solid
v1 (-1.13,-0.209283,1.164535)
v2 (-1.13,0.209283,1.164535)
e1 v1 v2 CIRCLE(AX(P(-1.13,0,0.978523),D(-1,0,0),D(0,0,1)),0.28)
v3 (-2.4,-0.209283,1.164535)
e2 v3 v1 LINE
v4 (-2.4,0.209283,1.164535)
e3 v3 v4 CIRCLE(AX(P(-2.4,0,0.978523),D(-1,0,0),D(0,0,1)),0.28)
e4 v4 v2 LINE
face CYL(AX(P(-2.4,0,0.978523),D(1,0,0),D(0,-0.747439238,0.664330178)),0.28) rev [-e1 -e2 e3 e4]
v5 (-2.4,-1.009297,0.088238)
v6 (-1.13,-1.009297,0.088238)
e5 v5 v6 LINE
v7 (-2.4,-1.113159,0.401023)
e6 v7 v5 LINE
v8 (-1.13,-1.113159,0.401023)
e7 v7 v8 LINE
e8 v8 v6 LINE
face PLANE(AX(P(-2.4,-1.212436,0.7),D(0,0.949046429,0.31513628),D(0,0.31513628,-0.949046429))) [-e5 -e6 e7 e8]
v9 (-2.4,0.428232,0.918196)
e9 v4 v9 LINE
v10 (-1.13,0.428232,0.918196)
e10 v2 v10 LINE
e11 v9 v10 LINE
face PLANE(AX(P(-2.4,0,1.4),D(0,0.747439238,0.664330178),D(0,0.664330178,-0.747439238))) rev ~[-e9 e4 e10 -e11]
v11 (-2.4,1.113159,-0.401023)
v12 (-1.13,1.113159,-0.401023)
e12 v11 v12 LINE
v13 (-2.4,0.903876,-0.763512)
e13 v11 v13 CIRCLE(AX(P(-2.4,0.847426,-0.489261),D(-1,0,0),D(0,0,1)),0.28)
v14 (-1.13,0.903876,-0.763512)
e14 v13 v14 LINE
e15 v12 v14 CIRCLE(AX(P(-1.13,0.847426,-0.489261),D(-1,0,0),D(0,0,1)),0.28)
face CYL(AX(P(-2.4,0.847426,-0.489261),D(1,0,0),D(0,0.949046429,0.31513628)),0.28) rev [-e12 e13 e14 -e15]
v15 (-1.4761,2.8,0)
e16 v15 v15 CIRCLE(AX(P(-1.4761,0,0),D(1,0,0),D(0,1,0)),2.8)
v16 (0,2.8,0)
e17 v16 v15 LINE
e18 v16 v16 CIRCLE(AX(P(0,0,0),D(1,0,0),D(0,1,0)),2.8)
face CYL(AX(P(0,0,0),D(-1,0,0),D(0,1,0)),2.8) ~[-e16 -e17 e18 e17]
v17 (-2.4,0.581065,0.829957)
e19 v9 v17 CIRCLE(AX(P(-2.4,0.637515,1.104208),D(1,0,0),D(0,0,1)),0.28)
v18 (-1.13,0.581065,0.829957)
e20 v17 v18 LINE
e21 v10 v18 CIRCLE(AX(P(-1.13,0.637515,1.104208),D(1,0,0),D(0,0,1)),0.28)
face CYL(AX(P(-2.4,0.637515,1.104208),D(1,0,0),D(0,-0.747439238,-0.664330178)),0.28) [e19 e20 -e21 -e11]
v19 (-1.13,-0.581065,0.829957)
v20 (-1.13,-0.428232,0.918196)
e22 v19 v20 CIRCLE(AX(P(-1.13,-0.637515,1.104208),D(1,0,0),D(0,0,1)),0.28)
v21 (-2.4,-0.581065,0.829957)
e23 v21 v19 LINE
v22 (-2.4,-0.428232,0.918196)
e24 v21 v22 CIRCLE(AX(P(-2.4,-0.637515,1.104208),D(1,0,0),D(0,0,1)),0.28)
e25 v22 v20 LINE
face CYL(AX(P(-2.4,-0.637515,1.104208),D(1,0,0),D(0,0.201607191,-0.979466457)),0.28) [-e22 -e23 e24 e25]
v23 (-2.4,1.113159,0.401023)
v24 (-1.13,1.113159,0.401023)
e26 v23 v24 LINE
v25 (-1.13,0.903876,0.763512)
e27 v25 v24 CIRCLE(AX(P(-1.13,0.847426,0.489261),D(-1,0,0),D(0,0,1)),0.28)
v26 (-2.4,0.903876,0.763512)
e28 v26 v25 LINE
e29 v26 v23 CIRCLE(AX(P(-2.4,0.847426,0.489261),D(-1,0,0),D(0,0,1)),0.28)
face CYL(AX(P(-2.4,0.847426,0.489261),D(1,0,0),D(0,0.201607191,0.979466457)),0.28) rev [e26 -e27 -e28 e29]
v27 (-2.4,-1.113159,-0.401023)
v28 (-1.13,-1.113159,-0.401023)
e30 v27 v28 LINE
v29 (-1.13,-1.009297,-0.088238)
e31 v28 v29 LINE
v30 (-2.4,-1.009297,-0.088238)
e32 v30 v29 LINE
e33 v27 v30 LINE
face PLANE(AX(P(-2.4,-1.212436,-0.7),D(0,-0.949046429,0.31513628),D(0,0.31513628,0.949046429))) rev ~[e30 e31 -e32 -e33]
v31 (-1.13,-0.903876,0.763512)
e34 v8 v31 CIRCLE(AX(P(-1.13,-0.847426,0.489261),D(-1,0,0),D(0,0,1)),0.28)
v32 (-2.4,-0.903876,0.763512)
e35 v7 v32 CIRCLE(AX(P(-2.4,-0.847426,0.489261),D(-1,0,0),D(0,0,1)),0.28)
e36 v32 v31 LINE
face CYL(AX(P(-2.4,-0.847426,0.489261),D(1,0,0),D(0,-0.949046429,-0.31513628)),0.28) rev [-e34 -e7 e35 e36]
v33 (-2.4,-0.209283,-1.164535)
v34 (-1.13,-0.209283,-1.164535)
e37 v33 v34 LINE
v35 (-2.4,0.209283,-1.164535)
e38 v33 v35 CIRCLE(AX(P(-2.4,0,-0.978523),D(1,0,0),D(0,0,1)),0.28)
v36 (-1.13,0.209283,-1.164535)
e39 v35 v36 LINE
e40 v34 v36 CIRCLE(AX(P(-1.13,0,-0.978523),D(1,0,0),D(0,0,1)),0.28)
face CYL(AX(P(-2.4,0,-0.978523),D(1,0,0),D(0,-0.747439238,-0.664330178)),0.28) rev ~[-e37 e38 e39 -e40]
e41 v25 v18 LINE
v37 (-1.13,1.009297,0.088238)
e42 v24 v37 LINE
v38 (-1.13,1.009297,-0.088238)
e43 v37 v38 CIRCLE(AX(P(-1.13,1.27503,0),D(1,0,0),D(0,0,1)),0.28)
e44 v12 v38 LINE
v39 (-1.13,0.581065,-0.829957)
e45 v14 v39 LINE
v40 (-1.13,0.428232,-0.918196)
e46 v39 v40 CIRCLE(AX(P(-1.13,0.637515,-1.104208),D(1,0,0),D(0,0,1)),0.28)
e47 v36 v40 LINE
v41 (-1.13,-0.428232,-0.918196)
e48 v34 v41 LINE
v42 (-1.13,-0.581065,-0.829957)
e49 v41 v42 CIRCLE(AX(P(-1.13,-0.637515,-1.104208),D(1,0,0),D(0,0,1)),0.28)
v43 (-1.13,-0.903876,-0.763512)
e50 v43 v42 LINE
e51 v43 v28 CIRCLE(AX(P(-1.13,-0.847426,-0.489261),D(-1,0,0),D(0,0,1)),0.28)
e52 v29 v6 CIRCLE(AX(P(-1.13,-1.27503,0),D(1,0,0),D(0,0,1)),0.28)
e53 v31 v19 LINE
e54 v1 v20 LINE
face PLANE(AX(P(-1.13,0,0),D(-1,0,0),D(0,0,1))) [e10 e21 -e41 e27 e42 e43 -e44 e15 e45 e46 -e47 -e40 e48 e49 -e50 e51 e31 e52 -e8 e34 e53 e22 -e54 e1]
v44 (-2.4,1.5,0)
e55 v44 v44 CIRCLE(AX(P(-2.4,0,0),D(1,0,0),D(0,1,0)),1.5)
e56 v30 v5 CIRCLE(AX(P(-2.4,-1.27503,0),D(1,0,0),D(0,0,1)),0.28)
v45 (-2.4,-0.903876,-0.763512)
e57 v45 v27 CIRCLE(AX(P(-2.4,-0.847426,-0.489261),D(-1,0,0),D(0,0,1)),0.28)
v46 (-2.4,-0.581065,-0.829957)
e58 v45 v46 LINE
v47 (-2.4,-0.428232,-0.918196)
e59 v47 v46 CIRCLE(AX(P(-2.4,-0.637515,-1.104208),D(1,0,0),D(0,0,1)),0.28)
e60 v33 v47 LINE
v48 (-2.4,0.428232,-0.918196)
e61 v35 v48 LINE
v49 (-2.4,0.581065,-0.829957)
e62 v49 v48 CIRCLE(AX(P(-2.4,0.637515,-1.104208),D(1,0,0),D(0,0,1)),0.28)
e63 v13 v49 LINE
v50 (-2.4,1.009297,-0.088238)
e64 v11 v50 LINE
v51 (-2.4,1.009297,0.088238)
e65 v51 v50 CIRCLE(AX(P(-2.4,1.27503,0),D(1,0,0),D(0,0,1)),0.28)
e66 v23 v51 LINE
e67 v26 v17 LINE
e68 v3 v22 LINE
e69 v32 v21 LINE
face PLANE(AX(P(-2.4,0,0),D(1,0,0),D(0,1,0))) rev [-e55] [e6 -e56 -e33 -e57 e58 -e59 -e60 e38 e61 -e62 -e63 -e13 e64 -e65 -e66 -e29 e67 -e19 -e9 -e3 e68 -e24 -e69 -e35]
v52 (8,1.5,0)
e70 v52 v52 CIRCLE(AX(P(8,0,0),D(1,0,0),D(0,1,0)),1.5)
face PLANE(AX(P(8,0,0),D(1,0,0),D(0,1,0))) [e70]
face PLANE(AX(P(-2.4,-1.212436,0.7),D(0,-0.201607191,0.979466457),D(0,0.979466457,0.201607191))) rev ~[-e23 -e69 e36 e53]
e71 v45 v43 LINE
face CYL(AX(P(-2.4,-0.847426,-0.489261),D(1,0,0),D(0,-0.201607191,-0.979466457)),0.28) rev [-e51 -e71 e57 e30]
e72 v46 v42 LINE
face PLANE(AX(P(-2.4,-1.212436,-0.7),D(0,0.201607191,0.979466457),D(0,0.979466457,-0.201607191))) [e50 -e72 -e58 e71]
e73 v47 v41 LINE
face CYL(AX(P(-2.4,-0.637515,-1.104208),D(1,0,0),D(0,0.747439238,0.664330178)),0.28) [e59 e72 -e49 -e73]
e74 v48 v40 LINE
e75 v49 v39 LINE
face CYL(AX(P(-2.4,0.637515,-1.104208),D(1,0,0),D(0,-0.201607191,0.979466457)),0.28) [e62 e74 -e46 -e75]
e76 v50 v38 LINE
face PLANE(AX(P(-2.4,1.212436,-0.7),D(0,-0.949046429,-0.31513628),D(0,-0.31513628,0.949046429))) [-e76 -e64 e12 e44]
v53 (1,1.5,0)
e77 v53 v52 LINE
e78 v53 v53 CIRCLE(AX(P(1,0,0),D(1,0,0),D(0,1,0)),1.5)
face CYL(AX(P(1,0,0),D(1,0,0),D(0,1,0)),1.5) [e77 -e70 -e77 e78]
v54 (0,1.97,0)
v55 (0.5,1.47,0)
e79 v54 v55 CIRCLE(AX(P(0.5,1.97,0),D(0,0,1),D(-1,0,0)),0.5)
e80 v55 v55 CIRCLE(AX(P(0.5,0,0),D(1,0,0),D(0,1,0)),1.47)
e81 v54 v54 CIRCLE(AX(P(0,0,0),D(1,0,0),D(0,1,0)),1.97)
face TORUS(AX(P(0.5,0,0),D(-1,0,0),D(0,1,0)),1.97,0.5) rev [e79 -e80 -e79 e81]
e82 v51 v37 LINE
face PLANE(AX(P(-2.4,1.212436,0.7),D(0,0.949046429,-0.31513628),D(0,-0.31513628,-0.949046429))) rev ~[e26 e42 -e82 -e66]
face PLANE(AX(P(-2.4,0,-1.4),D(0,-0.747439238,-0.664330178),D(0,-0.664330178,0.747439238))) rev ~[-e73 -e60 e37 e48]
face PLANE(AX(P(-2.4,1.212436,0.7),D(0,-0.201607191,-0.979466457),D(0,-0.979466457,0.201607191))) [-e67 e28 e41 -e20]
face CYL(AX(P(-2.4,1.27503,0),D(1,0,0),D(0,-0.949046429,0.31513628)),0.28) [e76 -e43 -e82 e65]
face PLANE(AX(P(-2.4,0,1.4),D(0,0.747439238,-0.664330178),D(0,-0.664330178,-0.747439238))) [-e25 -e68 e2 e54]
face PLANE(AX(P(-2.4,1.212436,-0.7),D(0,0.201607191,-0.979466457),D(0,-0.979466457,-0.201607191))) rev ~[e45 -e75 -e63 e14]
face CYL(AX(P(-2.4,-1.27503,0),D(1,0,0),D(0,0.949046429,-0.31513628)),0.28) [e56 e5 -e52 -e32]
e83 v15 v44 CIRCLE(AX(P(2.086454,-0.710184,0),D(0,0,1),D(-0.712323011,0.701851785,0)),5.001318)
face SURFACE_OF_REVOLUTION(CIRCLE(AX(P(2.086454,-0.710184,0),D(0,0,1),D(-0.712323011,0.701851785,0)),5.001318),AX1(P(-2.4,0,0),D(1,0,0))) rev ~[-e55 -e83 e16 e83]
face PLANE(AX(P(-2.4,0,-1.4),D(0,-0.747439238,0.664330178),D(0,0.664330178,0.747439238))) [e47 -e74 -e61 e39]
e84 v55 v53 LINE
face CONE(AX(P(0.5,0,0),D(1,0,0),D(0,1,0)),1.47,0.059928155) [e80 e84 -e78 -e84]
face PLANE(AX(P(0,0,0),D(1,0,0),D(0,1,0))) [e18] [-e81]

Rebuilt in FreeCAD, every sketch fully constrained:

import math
import FreeCAD as App
import Part
import Sketcher
from FreeCAD import Vector
Q = App.Units.Quantity


def edges_at(feature, points):
    """Names of the edges that pass closest to the given points."""
    edges = feature.Shape.Edges
    near = lambda p: min(range(len(edges)), key=lambda i: edges[i].distToShape(Part.Vertex(*p))[0])
    return sorted({f"Edge{near(p) + 1}" for p in points})


def add_polygon(sketch, points):
    """Adds a closed chain of lines whose ends are joined by coincident constraints."""
    first, n = sketch.GeometryCount, len(points)
    for a, b in zip(points, points[1:] + points[:1]):
        sketch.addGeometry(Part.LineSegment(App.Vector(*a, 0), App.Vector(*b, 0)), False)
    for i in range(n):
        sketch.addConstraint(Sketcher.Constraint("Coincident", first + i, 2, first + (i + 1) % n, 1))

doc = App.newDocument("Part")
params = doc.addObject("Spreadsheet::Sheet", "Params")
for row, (alias, value) in enumerate([
    ("sketch1_radius", "0.5 mm"),
    ("sketch1_width", "7 mm"),
    ("sketch1_height", "1.5 mm"),
    ("sketch1_height2", "0.83 mm"),
    ("revolution_angle", "360 deg"),
    ("pocket1_length", "1.27 mm"),
    ("fillet_radius", "0.28 mm"),
], start=1):
    params.set(f"A{row}", alias)
    params.set(f"B{row}", "=" + value)
    params.setAlias(f"B{row}", alias)

body = doc.addObject("PartDesign::Body", "Body")

# Sketch on XY plane
sketch1 = body.newObject("Sketcher::SketchObject", "Sketch")
sketch1.AttachmentSupport = (doc.getObject("XY_Plane"), [""])
sketch1.MapMode = "FlatFace"
sketch1.addGeometry([
    Part.LineSegment(Vector(-2.4, 1.5, 0), Vector(-2.4, 0, 0)),  # 0
    Part.LineSegment(Vector(-2.4, 0, 0), Vector(8, 0, 0)),  # 1
    Part.LineSegment(Vector(8, 0, 0), Vector(8, 1.5, 0)),  # 2
    Part.LineSegment(Vector(8, 1.5, 0), Vector(1, 1.5, 0)),  # 3
    Part.LineSegment(Vector(1, 1.5, 0), Vector(0.5, 1.5, 0)),  # 4
    Part.ArcOfCircle(Part.Circle(Vector(0.5, 2, 0), Vector(0, 0, 1), 0.5), math.radians(180), math.radians(270)),  # 5
    Part.LineSegment(Vector(0, 2, 0), Vector(0, 2.8, 0)),  # 6
    Part.LineSegment(Vector(0, 2.8, 0), Vector(-1.5, 2.8, 0)),  # 7
    Part.ArcOfCircle(Part.Circle(Vector(2.1, -0.7, 0), Vector(0, 0, 1), 5), math.radians(135.42), math.radians(153.77)),  # 8
], False)
sketch1.addConstraint([
    Sketcher.Constraint("Coincident", 0, 2, 1, 1),
    Sketcher.Constraint("Coincident", 1, 2, 2, 1),
    Sketcher.Constraint("Coincident", 2, 2, 3, 1),
    Sketcher.Constraint("Coincident", 3, 2, 4, 1),
    Sketcher.Constraint("Coincident", 4, 2, 5, 2),
    Sketcher.Constraint("Tangent", 5, 1, 6, 1),
    Sketcher.Constraint("Coincident", 6, 2, 7, 1),
    Sketcher.Constraint("Coincident", 7, 2, 8, 1),
    Sketcher.Constraint("Coincident", 8, 2, 0, 1),
    Sketcher.Constraint("Vertical", 0),
    Sketcher.Constraint("Horizontal", 1),
    Sketcher.Constraint("Vertical", 2),
    Sketcher.Constraint("Horizontal", 3),
    Sketcher.Constraint("Vertical", 6),
    Sketcher.Constraint("Horizontal", 7),
    Sketcher.Constraint("PointOnObject", 0, 2, -1),
    Sketcher.Constraint("PointOnObject", 5, 1, -2),
    Sketcher.Constraint("Horizontal", 3, 2, 8, 2),
    Sketcher.Constraint("Vertical", 5, 3, 4, 2),
    Sketcher.Constraint("Radius", 5, Q("0.5 mm")),
    Sketcher.Constraint("DistanceX", 3, 2, 3, 1, Q("7 mm")),
    Sketcher.Constraint("DistanceX", -1, 1, 1, 2, Q("8 mm")),
    Sketcher.Constraint("DistanceX", 0, 2, -1, 1, Q("2.4 mm")),
    Sketcher.Constraint("DistanceY", 0, 2, 0, 1, Q("1.5 mm")),
    Sketcher.Constraint("DistanceY", 6, 1, 6, 2, Q("0.83 mm")),
    Sketcher.Constraint("DistanceY", -1, 1, 6, 2, Q("2.8 mm")),
    Sketcher.Constraint("Radius", 8, Q("5.0013 mm")),
    Sketcher.Constraint("DistanceX", 7, 2, 7, 1, Q("1.476 mm")),
])
sketch1.setExpression("Constraints[19]", "Params.sketch1_radius")
sketch1.setExpression("Constraints[20]", "Params.sketch1_width")
sketch1.setExpression("Constraints[23]", "Params.sketch1_height")
sketch1.setExpression("Constraints[24]", "Params.sketch1_height2")
revolution = body.newObject("PartDesign::Revolution", "Revolution")
revolution.Profile = sketch1
revolution.ReferenceAxis = (sketch1, ["H_Axis"])
revolution.setExpression("Angle", "Params.revolution_angle")

# Sketch on YZ plane
sketch2 = body.newObject("Sketcher::SketchObject", "Sketch001")
sketch2.AttachmentSupport = (doc.getObject("YZ_Plane"), [""])
sketch2.MapMode = "FlatFace"
sketch2.AttachmentOffset = App.Placement(Vector(0, 0, -2.4), App.Rotation())
add_polygon(sketch2, [(0.5, -0.8), (0, -1.4), (-0.5, -0.8), (0, 0)])  # lines 0-3
sketch2.addConstraint([
    Sketcher.Constraint("Coincident", 2, 2, -1, 1),
    Sketcher.Constraint("Symmetric", 1, 2, 3, 2, -2),
    Sketcher.Constraint("PointOnObject", 0, 2, -2),
    Sketcher.Constraint("Angle", 2, Q("59.9999 deg")),
    Sketcher.Constraint("DistanceY", 0, 2, -1, 1, Q("1.4 mm")),
    Sketcher.Constraint("Angle", 0, Q("-131.631 deg")),
])
pocket1 = body.newObject("PartDesign::Pocket", "Pocket")
pocket1.Profile = sketch2
pocket1.setExpression("Length", "Params.pocket1_length")
pocket1.Reversed = True
doc.recompute()

polarpattern = body.newObject("PartDesign::PolarPattern", "PolarPattern")
polarpattern.Originals = [pocket1]
polarpattern.Axis = (doc.getObject("X_Axis"), [""])
polarpattern.Angle = 360
polarpattern.Occurrences = 6
body.Tip = polarpattern
doc.recompute()

fillet = body.newObject("PartDesign::Fillet", "Fillet")
fillet.Base = (polarpattern, edges_at(polarpattern, [
    (-1.765, -1.212, -0.7),
    (-1.765, -0.49, -0.849),
    (-1.765, -0.98, 0),
    (-1.765, -1.212, 0.7),
    (-1.765, -0.49, 0.849),
    (-1.765, 0, 1.4),
    (-1.765, 0.98, 0),
    (-1.765, 1.212, 0.7),
    (-1.765, 0.49, 0.849),
    (-1.765, 0.49, -0.849),
    (-1.765, 0, -1.4),
    (-1.765, 1.212, -0.7),
]))
fillet.setExpression("Radius", "Params.fillet_radius")

doc.recompute()
